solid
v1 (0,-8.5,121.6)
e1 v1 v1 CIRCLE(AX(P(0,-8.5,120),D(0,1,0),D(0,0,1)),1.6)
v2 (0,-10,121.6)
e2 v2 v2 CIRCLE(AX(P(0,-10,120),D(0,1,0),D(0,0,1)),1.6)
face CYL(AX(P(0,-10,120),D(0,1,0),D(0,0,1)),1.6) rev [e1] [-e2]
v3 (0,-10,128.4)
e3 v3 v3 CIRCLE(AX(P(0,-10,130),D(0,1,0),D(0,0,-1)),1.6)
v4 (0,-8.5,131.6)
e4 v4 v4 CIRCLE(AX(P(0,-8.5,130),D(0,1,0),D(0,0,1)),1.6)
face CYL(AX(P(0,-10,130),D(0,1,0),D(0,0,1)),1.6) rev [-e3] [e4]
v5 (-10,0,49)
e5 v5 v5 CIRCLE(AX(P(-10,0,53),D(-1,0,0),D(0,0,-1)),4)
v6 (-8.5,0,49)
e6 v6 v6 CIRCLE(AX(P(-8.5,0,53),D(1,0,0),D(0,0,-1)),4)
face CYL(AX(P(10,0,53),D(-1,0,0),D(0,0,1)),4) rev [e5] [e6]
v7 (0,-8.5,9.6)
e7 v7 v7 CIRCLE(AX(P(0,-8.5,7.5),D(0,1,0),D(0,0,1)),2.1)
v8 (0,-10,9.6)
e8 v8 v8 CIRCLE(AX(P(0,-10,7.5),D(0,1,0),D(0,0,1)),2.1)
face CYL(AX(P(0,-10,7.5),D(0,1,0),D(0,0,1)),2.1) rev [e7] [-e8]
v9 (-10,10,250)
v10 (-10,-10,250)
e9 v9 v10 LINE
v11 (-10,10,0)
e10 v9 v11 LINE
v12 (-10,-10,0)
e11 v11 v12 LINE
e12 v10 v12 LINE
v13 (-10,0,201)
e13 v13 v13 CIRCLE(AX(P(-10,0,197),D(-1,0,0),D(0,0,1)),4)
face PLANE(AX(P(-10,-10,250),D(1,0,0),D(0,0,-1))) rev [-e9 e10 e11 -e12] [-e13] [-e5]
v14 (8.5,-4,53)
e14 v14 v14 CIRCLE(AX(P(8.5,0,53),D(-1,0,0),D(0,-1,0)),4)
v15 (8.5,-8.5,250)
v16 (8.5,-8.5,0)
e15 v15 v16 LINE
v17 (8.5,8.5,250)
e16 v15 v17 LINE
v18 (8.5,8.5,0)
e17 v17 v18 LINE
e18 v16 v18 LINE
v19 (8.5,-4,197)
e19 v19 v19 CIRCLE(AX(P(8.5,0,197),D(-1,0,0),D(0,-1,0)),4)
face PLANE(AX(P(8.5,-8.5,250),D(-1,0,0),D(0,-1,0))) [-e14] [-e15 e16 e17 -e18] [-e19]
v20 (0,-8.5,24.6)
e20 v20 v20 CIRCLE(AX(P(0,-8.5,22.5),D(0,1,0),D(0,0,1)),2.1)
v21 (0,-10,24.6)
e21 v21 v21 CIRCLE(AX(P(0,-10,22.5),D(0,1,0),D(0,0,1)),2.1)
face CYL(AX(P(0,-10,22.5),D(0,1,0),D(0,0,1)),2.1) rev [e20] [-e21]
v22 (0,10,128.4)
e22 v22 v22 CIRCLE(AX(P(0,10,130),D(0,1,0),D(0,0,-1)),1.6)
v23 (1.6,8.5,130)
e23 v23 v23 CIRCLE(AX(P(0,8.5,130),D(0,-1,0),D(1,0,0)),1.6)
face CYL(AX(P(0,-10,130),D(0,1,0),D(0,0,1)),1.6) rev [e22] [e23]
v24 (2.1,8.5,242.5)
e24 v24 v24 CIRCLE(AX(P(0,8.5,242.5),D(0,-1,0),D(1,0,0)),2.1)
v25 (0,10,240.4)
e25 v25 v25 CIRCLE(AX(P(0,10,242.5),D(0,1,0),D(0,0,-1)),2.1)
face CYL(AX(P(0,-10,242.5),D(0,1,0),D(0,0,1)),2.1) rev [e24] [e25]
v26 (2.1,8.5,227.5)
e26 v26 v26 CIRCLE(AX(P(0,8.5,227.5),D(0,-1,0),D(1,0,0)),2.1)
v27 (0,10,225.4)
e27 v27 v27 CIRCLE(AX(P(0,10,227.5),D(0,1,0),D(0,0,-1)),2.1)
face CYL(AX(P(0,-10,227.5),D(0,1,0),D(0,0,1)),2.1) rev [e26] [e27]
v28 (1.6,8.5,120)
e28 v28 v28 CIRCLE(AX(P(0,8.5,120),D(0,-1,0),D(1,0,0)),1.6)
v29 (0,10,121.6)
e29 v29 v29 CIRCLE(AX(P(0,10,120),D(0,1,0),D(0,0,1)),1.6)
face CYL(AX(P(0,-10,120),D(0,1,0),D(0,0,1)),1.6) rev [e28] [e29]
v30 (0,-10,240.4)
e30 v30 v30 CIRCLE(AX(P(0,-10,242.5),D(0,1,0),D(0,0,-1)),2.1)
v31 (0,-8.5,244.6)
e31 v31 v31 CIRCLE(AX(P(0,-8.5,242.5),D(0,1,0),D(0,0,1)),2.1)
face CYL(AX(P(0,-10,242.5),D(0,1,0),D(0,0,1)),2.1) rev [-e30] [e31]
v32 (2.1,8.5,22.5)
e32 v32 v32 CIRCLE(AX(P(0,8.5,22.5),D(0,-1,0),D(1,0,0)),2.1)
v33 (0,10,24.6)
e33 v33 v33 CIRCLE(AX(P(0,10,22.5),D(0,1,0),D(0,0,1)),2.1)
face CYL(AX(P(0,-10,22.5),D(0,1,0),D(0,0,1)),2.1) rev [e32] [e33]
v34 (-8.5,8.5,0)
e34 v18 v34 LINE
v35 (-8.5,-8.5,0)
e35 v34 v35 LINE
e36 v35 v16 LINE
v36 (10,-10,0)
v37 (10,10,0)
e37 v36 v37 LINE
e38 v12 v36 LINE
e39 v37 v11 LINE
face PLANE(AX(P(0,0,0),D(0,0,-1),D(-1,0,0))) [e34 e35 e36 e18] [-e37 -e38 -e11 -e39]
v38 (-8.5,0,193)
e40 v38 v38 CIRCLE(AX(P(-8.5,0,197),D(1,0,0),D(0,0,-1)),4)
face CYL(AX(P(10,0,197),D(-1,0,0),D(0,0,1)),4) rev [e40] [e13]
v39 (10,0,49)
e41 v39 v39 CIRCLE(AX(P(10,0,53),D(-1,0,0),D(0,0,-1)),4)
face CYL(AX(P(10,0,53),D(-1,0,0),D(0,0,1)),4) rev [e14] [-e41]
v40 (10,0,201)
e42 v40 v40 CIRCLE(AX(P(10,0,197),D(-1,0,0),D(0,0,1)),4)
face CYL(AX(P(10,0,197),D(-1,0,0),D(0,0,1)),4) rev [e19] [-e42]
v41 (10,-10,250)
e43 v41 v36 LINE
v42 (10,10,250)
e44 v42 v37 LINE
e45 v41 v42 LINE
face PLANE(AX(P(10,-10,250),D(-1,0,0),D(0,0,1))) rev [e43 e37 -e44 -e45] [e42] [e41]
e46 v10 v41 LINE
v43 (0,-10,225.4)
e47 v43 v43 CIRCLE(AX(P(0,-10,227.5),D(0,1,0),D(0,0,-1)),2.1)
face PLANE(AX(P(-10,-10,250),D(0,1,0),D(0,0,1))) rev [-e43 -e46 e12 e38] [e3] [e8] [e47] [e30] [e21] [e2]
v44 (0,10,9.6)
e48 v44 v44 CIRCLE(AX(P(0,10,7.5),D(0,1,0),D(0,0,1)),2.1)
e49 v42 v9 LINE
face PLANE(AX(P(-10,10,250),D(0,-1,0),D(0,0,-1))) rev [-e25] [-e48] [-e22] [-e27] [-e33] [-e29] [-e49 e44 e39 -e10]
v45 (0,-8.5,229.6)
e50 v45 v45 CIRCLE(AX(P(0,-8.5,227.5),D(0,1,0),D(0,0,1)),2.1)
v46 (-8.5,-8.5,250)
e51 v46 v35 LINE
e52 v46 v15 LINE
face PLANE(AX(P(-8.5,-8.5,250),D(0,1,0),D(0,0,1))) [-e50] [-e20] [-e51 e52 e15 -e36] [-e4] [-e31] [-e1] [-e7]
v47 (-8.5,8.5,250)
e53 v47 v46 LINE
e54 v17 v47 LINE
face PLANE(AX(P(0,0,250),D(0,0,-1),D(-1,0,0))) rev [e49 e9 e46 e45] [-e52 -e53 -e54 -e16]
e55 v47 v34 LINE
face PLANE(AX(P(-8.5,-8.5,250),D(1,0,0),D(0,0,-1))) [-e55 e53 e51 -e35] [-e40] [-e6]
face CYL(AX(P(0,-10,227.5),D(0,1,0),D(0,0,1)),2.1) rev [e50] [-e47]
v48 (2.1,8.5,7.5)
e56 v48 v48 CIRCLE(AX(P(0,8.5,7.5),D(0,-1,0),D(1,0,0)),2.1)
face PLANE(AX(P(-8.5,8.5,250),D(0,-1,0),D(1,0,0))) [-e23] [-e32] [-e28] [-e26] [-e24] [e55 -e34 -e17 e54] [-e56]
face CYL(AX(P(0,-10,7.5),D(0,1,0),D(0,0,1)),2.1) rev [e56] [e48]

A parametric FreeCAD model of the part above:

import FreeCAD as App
import Part
import Sketcher


def add_polygon(sketch, points):
    """Adds a closed chain of lines whose ends are joined by coincident constraints."""
    first, n = sketch.GeometryCount, len(points)
    for a, b in zip(points, points[1:] + points[:1]):
        sketch.addGeometry(Part.LineSegment(App.Vector(*a, 0), App.Vector(*b, 0)), False)
    for i in range(n):
        sketch.addConstraint(Sketcher.Constraint("Coincident", first + i, 2, first + (i + 1) % n, 1))

doc = App.newDocument("Part")
body = doc.addObject("PartDesign::Body", "Body")

# Sketch on XY plane
sketch1 = doc.addObject("Sketcher::SketchObject", "Sketch")
body.addObject(sketch1)
sketch1.AttachmentSupport = (doc.XY_Plane, [""])
sketch1.MapMode = "FlatFace"
add_polygon(sketch1, [(-10, 10), (-10, -10), (10, -10), (10, 10)])  # lines 0-3
add_polygon(sketch1, [(8.5, -8.5), (-8.5, -8.5), (-8.5, 8.5), (8.5, 8.5)])  # lines 4-7
sketch1.addConstraint(Sketcher.Constraint("Vertical", 0))
sketch1.addConstraint(Sketcher.Constraint("Horizontal", 1))
sketch1.addConstraint(Sketcher.Constraint("Vertical", 2))
sketch1.addConstraint(Sketcher.Constraint("Horizontal", 3))
sketch1.addConstraint(Sketcher.Constraint("Horizontal", 4))
sketch1.addConstraint(Sketcher.Constraint("Vertical", 5))
sketch1.addConstraint(Sketcher.Constraint("Horizontal", 6))
sketch1.addConstraint(Sketcher.Constraint("Vertical", 7))
sketch1.addConstraint(Sketcher.Constraint("Symmetric", 0, 2, 2, 2, -1, 1))
sketch1.addConstraint(Sketcher.Constraint("Symmetric", 4, 2, 6, 2, -1, 1))
sketch1.addConstraint(Sketcher.Constraint("Equal", 3, 0))
sketch1.addConstraint(Sketcher.Constraint("Equal", 6, 5))
sketch1.addConstraint(Sketcher.Constraint("DistanceX", 1, 1, 1, 2, 20.0))
sketch1.addConstraint(Sketcher.Constraint("DistanceX", 4, 2, 4, 1, 17.0))
pad1 = doc.addObject("PartDesign::Pad", "Pad")
body.addObject(pad1)
pad1.Profile = sketch1
pad1.Length = 250

# Sketch on XZ plane
sketch2 = doc.addObject("Sketcher::SketchObject", "Sketch001")
body.addObject(sketch2)
sketch2.AttachmentSupport = (doc.XZ_Plane, [""])
sketch2.MapMode = "FlatFace"
sketch2.AttachmentOffset = App.Placement(App.Vector(0, 0, -10), App.Rotation())
sketch2.addGeometry(Part.Circle(App.Vector(0, 7.5, 0), App.Vector(0, 0, 1), 2.1), False)
sketch2.addGeometry(Part.Circle(App.Vector(0, 22.5, 0), App.Vector(0, 0, 1), 2.1), False)
sketch2.addGeometry(Part.Circle(App.Vector(0, 120, 0), App.Vector(0, 0, 1), 1.6), False)
sketch2.addGeometry(Part.Circle(App.Vector(0, 130, 0), App.Vector(0, 0, 1), 1.6), False)
sketch2.addGeometry(Part.Circle(App.Vector(0, 227.5, 0), App.Vector(0, 0, 1), 2.1), False)
sketch2.addGeometry(Part.Circle(App.Vector(0, 242.5, 0), App.Vector(0, 0, 1), 2.1), False)
sketch2.addConstraint(Sketcher.Constraint("Equal", 0, 1))
sketch2.addConstraint(Sketcher.Constraint("Equal", 2, 3))
sketch2.addConstraint(Sketcher.Constraint("Equal", 1, 4))
sketch2.addConstraint(Sketcher.Constraint("Equal", 4, 5))
sketch2.addConstraint(Sketcher.Constraint("PointOnObject", 0, 3, -2))
sketch2.addConstraint(Sketcher.Constraint("PointOnObject", 1, 3, -2))
sketch2.addConstraint(Sketcher.Constraint("PointOnObject", 2, 3, -2))
sketch2.addConstraint(Sketcher.Constraint("PointOnObject", 3, 3, -2))
sketch2.addConstraint(Sketcher.Constraint("PointOnObject", 4, 3, -2))
sketch2.addConstraint(Sketcher.Constraint("PointOnObject", 5, 3, -2))
sketch2.addConstraint(Sketcher.Constraint("Diameter", 0, 4.2))
sketch2.addConstraint(Sketcher.Constraint("Diameter", 2, 3.2))
sketch2.addConstraint(Sketcher.Constraint("DistanceY", -1, 1, 2, 3, 120.0))
sketch2.addConstraint(Sketcher.Constraint("DistanceY", -1, 1, 3, 3, 130.0))
sketch2.addConstraint(Sketcher.Constraint("DistanceY", 0, 3, 1, 3, 15.0))
sketch2.addConstraint(Sketcher.Constraint("DistanceY", 1, 3, 4, 3, 205.0))
sketch2.addConstraint(Sketcher.Constraint("DistanceY", 4, 3, 5, 3, 15.0))
sketch2.addConstraint(Sketcher.Constraint("DistanceY", -1, 1, 0, 3, 7.5))
pocket1 = doc.addObject("PartDesign::Pocket", "Pocket")
body.addObject(pocket1)
pocket1.Profile = sketch2
pocket1.Type = "ThroughAll"
pocket1.Reversed = True

# Sketch on YZ plane
sketch3 = doc.addObject("Sketcher::SketchObject", "Sketch002")
body.addObject(sketch3)
sketch3.AttachmentSupport = (doc.YZ_Plane, [""])
sketch3.MapMode = "FlatFace"
sketch3.AttachmentOffset = App.Placement(App.Vector(0, 0, -10), App.Rotation())
sketch3.addGeometry(Part.Circle(App.Vector(0, 197, 0), App.Vector(0, 0, 1), 4), False)
sketch3.addGeometry(Part.Circle(App.Vector(0, 53, 0), App.Vector(0, 0, 1), 4), False)
sketch3.addConstraint(Sketcher.Constraint("Equal", 0, 1))
sketch3.addConstraint(Sketcher.Constraint("PointOnObject", 0, 3, -2))
sketch3.addConstraint(Sketcher.Constraint("PointOnObject", 1, 3, -2))
sketch3.addConstraint(Sketcher.Constraint("Diameter", 0, 8.0))
sketch3.addConstraint(Sketcher.Constraint("DistanceY", -1, 1, 0, 3, 197.0))
sketch3.addConstraint(Sketcher.Constraint("DistanceY", -1, 1, 1, 3, 53.0))
pocket2 = doc.addObject("PartDesign::Pocket", "Pocket001")
body.addObject(pocket2)
pocket2.Profile = sketch3
pocket2.Type = "ThroughAll"
pocket2.Reversed = True

doc.recompute()
